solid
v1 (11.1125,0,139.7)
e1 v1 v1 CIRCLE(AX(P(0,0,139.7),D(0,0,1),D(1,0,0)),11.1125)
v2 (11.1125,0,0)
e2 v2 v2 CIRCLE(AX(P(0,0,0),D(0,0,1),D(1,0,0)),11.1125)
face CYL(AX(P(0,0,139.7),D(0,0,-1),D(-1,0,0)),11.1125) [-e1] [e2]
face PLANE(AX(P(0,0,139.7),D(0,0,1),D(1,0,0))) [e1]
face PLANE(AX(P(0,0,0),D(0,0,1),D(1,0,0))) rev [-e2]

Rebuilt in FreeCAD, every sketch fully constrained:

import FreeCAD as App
import Part
import Sketcher

V = App.Vector
Q = App.Units.Quantity

doc = App.newDocument("Part")
body = doc.addObject("PartDesign::Body", "Body")

# Sketch on XY plane
sketch1 = doc.addObject("Sketcher::SketchObject", "Sketch")
body.addObject(sketch1)
sketch1.AttachmentSupport = (doc.XY_Plane, [""])
sketch1.MapMode = "FlatFace"
sketch1.addGeometry(Part.Circle(V(0, 0, 0), V(0, 0, 1), 11), False)
sketch1.addConstraint([
    Sketcher.Constraint("Coincident", 0, 3, -1, 1),
    Sketcher.Constraint("Diameter", 0, Q("0.875 in")),
])
pad1 = doc.addObject("PartDesign::Pad", "Pad")
body.addObject(pad1)
pad1.Profile = sketch1
pad1.Length = Q("5.5 in")

doc.recompute()
